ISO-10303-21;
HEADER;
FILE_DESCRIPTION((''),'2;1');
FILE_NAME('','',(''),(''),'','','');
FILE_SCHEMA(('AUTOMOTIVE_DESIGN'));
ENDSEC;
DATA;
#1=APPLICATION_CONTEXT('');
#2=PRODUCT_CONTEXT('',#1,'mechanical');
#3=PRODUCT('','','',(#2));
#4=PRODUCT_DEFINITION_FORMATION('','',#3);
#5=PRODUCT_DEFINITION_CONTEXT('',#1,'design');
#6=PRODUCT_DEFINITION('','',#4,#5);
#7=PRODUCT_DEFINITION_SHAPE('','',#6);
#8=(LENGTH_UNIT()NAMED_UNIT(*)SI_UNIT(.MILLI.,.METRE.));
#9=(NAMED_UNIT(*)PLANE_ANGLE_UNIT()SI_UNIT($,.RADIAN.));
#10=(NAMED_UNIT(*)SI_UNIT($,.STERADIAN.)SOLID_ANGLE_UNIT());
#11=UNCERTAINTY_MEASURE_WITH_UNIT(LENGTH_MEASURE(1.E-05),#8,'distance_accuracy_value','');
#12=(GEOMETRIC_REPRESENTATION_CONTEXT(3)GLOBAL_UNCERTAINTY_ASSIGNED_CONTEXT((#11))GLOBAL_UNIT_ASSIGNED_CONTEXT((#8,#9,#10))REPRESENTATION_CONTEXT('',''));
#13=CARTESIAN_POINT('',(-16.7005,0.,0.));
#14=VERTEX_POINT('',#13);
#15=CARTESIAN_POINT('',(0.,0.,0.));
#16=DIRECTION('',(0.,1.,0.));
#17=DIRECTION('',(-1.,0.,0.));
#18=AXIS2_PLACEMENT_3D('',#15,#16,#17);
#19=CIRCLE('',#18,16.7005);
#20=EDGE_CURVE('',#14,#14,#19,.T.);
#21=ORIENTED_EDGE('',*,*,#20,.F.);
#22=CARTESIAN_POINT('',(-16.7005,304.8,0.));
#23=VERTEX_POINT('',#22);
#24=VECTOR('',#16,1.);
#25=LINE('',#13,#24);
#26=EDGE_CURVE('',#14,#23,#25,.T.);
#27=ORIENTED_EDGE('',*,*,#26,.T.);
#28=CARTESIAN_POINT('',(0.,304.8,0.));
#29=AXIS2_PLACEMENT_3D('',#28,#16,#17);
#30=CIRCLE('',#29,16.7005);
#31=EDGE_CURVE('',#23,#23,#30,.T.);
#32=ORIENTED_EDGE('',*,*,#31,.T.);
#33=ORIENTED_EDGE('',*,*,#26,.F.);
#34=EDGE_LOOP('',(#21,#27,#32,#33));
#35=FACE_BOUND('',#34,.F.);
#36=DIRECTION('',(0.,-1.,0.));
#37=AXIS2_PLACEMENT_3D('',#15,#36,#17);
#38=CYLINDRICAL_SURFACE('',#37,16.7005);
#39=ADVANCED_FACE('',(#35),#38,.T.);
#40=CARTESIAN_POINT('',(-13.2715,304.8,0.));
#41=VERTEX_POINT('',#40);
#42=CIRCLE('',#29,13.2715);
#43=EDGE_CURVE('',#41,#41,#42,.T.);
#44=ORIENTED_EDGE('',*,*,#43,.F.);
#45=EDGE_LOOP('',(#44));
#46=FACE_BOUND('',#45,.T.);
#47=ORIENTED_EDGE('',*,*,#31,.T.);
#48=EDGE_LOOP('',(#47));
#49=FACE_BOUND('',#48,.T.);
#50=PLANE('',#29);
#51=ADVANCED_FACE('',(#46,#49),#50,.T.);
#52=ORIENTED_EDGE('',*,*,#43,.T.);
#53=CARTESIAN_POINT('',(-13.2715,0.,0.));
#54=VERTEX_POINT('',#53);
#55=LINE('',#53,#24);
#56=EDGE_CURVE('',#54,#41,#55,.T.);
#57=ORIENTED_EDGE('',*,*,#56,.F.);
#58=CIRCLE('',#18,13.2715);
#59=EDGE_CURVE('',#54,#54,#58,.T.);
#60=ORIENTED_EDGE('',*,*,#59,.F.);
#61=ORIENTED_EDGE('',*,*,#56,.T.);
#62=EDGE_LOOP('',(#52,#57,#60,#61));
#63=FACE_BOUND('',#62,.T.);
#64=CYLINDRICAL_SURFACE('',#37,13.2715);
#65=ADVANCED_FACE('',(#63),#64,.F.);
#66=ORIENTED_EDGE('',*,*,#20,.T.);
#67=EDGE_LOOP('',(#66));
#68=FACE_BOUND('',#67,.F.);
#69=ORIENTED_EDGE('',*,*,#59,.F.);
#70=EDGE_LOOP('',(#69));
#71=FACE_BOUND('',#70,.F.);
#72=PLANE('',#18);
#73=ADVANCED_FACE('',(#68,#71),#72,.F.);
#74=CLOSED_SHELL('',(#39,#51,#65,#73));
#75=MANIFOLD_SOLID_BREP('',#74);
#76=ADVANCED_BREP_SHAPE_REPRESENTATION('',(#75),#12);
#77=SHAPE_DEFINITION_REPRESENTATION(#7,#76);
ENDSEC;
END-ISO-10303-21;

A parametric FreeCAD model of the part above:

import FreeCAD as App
import Part
import Sketcher

V = App.Vector
Q = App.Units.Quantity

doc = App.newDocument("Part")
body = doc.addObject("PartDesign::Body", "Body")

sketch1 = doc.addObject("Sketcher::SketchObject", "Sketch")
body.addObject(sketch1)
sketch1.AttachmentSupport = (doc.XZ_Plane, [""])
sketch1.MapMode = "FlatFace"
sketch1.addGeometry(Part.Circle(V(0, 0, 0), V(0, 0, 1), 16.7005), False)
sketch1.addGeometry(Part.Circle(V(0, 0, 0), V(0, 0, 1), 13.2715), False)
sketch1.addConstraint(Sketcher.Constraint("Coincident", 0, 3, -1, 1))
sketch1.addConstraint(Sketcher.Constraint("Coincident", 1, 3, -1, 1))
sketch1.addConstraint(Sketcher.Constraint("Diameter", 0, Q("1.315 in")))
sketch1.addConstraint(Sketcher.Constraint("Diameter", 1, Q("1.045 in")))
pad1 = doc.addObject("PartDesign::Pad", "Pad")
body.addObject(pad1)
pad1.Profile = sketch1
pad1.Length = Q("12 in")
pad1.Reversed = True

doc.recompute()
